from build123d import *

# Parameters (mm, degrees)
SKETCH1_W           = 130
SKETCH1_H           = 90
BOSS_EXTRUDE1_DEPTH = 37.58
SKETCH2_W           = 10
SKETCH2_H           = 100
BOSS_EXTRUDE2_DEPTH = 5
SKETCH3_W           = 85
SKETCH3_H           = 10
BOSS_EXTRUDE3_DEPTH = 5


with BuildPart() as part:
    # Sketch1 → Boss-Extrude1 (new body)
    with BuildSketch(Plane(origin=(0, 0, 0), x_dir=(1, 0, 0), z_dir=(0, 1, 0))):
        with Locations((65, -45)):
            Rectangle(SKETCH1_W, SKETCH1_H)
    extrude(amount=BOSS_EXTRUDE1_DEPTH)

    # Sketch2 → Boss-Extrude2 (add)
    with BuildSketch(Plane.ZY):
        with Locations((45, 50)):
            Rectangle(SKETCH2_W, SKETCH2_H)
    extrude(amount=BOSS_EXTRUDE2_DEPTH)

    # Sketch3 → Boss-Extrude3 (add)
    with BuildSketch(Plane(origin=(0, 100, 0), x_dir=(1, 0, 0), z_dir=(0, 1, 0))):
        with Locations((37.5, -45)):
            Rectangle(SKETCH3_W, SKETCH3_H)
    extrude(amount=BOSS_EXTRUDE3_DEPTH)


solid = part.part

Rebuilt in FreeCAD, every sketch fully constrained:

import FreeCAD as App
import Part
import Sketcher
from FreeCAD import Vector
Q = App.Units.Quantity


def add_polygon(sketch, points):
    """Adds a closed chain of lines whose ends are joined by coincident constraints."""
    first, n = sketch.GeometryCount, len(points)
    for a, b in zip(points, points[1:] + points[:1]):
        sketch.addGeometry(Part.LineSegment(App.Vector(*a, 0), App.Vector(*b, 0)), False)
    for i in range(n):
        sketch.addConstraint(Sketcher.Constraint("Coincident", first + i, 2, first + (i + 1) % n, 1))

doc = App.newDocument("Part")
body = doc.addObject("PartDesign::Body", "Body")

sketch1 = doc.addObject("Sketcher::SketchObject", "Sketch")
body.addObject(sketch1)
sketch1.AttachmentSupport = (doc.XZ_Plane, [""])
sketch1.MapMode = "FlatFace"
add_polygon(sketch1, [(0, 0), (0, 90), (130, 90), (130, 0)])
sketch1.addConstraint(Sketcher.Constraint("Vertical", 0))
sketch1.addConstraint(Sketcher.Constraint("Horizontal", 1))
sketch1.addConstraint(Sketcher.Constraint("Vertical", 2))
sketch1.addConstraint(Sketcher.Constraint("Horizontal", 3))
sketch1.addConstraint(Sketcher.Constraint("Coincident", 3, 2, -1, 1))
sketch1.addConstraint(Sketcher.Constraint("DistanceX", 1, 1, 1, 2, Q("130 mm")))
sketch1.addConstraint(Sketcher.Constraint("DistanceY", 0, 1, 0, 2, Q("90 mm")))
pad1 = doc.addObject("PartDesign::Pad", "Pad")
body.addObject(pad1)
pad1.Profile = sketch1
pad1.Length = 37.58
pad1.Reversed = True

sketch2 = doc.addObject("Sketcher::SketchObject", "Sketch001")
body.addObject(sketch2)
sketch2.AttachmentSupport = (doc.YZ_Plane, [""])
sketch2.MapMode = "FlatFace"
add_polygon(sketch2, [(100, 40), (0, 40), (0, 50), (100, 50)])
sketch2.addConstraint(Sketcher.Constraint("Horizontal", 0))
sketch2.addConstraint(Sketcher.Constraint("Vertical", 1))
sketch2.addConstraint(Sketcher.Constraint("Horizontal", 2))
sketch2.addConstraint(Sketcher.Constraint("Vertical", 3))
sketch2.addConstraint(Sketcher.Constraint("PointOnObject", 0, 2, -2))
sketch2.addConstraint(Sketcher.Constraint("DistanceX", 0, 2, 0, 1, Q("100 mm")))
sketch2.addConstraint(Sketcher.Constraint("DistanceY", 1, 1, 1, 2, Q("10 mm")))
sketch2.addConstraint(Sketcher.Constraint("DistanceY", -1, 1, 0, 2, Q("40 mm")))
pad2 = doc.addObject("PartDesign::Pad", "Pad001")
body.addObject(pad2)
pad2.Profile = sketch2
pad2.Length = 5
pad2.Reversed = True

sketch3 = doc.addObject("Sketcher::SketchObject", "Sketch002")
body.addObject(sketch3)
sketch3.AttachmentSupport = (doc.XZ_Plane, [""])
sketch3.MapMode = "FlatFace"
sketch3.AttachmentOffset = App.Placement(Vector(0, 0, -100), App.Rotation())
add_polygon(sketch3, [(-5, 40), (-5, 50), (80, 50), (80, 40)])
sketch3.addConstraint(Sketcher.Constraint("Vertical", 0))
sketch3.addConstraint(Sketcher.Constraint("Horizontal", 1))
sketch3.addConstraint(Sketcher.Constraint("Vertical", 2))
sketch3.addConstraint(Sketcher.Constraint("Horizontal", 3))
sketch3.addConstraint(Sketcher.Constraint("DistanceX", 1, 1, 1, 2, Q("85 mm")))
sketch3.addConstraint(Sketcher.Constraint("DistanceY", 0, 1, 0, 2, Q("10 mm")))
sketch3.addConstraint(Sketcher.Constraint("DistanceX", 0, 2, -1, 1, Q("5 mm")))
sketch3.addConstraint(Sketcher.Constraint("DistanceY", -1, 1, 0, 2, Q("50 mm")))
pad3 = doc.addObject("PartDesign::Pad", "Pad002")
body.addObject(pad3)
pad3.Profile = sketch3
pad3.Length = 5
pad3.Reversed = True

doc.recompute()
